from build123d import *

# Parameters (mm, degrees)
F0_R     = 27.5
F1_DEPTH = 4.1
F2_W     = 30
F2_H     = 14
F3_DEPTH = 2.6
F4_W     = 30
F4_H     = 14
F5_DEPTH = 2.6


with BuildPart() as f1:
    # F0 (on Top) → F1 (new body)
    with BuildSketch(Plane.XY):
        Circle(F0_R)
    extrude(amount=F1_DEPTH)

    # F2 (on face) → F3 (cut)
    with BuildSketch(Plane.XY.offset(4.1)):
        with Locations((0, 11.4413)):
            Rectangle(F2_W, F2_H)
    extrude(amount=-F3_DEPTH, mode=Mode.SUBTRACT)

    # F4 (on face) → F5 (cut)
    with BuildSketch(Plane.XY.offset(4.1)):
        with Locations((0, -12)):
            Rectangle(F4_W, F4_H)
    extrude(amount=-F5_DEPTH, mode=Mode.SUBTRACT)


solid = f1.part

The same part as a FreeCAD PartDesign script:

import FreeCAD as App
import Part
import Sketcher
from FreeCAD import Vector


def add_polygon(sketch, points):
    """Adds a closed chain of lines whose ends are joined by coincident constraints."""
    first, n = sketch.GeometryCount, len(points)
    for a, b in zip(points, points[1:] + points[:1]):
        sketch.addGeometry(Part.LineSegment(App.Vector(*a, 0), App.Vector(*b, 0)), False)
    for i in range(n):
        sketch.addConstraint(Sketcher.Constraint("Coincident", first + i, 2, first + (i + 1) % n, 1))

doc = App.newDocument("Part")
body = doc.addObject("PartDesign::Body", "Body")

# Sketch on XY plane
sketch1 = body.newObject("Sketcher::SketchObject", "Sketch")
sketch1.AttachmentSupport = (doc.getObject("XY_Plane"), [""])
sketch1.MapMode = "FlatFace"
sketch1.addGeometry(Part.Circle(Vector(0, 0, 0), Vector(0, 0, 1), 28), False)
sketch1.addConstraint(Sketcher.Constraint("Coincident", 0, 3, -1, 1))
sketch1.addConstraint(Sketcher.Constraint("Diameter", 0, 55.0))
pad1 = body.newObject("PartDesign::Pad", "Pad")
pad1.Profile = sketch1
pad1.Length = 4.1

# Sketch on XY plane
sketch2 = body.newObject("Sketcher::SketchObject", "Sketch001")
sketch2.AttachmentSupport = (doc.getObject("XY_Plane"), [""])
sketch2.MapMode = "FlatFace"
sketch2.AttachmentOffset = App.Placement(Vector(0, 0, 4.1), App.Rotation())
add_polygon(sketch2, [(-15, 18), (-15, 4), (15, 4), (15, 18)])  # lines 0-3
sketch2.addConstraint(Sketcher.Constraint("Vertical", 0))
sketch2.addConstraint(Sketcher.Constraint("Horizontal", 1))
sketch2.addConstraint(Sketcher.Constraint("Vertical", 2))
sketch2.addConstraint(Sketcher.Constraint("Horizontal", 3))
sketch2.addConstraint(Sketcher.Constraint("DistanceX", 1, 1, 1, 2, 30.0))
sketch2.addConstraint(Sketcher.Constraint("DistanceY", 0, 2, 0, 1, 14.0))
sketch2.addConstraint(Sketcher.Constraint("DistanceX", 0, 2, -1, 1, 15.0))
sketch2.addConstraint(Sketcher.Constraint("DistanceY", -1, 1, 0, 2, 4.4413))
pocket1 = body.newObject("PartDesign::Pocket", "Pocket")
pocket1.Profile = sketch2
pocket1.Length = 2.6

# Sketch on XY plane
sketch3 = body.newObject("Sketcher::SketchObject", "Sketch002")
sketch3.AttachmentSupport = (doc.getObject("XY_Plane"), [""])
sketch3.MapMode = "FlatFace"
sketch3.AttachmentOffset = App.Placement(Vector(0, 0, 4.1), App.Rotation())
add_polygon(sketch3, [(-15, -5), (-15, -19), (15, -19), (15, -5)])  # lines 0-3
sketch3.addConstraint(Sketcher.Constraint("Vertical", 0))
sketch3.addConstraint(Sketcher.Constraint("Horizontal", 1))
sketch3.addConstraint(Sketcher.Constraint("Vertical", 2))
sketch3.addConstraint(Sketcher.Constraint("Horizontal", 3))
sketch3.addConstraint(Sketcher.Constraint("DistanceX", 1, 1, 1, 2, 30.0))
sketch3.addConstraint(Sketcher.Constraint("DistanceY", 0, 2, 0, 1, 14.0))
sketch3.addConstraint(Sketcher.Constraint("DistanceX", 0, 2, -1, 1, 15.0))
sketch3.addConstraint(Sketcher.Constraint("DistanceY", 0, 2, -1, 1, 19.0))
pocket2 = body.newObject("PartDesign::Pocket", "Pocket001")
pocket2.Profile = sketch3
pocket2.Length = 2.6

doc.recompute()
